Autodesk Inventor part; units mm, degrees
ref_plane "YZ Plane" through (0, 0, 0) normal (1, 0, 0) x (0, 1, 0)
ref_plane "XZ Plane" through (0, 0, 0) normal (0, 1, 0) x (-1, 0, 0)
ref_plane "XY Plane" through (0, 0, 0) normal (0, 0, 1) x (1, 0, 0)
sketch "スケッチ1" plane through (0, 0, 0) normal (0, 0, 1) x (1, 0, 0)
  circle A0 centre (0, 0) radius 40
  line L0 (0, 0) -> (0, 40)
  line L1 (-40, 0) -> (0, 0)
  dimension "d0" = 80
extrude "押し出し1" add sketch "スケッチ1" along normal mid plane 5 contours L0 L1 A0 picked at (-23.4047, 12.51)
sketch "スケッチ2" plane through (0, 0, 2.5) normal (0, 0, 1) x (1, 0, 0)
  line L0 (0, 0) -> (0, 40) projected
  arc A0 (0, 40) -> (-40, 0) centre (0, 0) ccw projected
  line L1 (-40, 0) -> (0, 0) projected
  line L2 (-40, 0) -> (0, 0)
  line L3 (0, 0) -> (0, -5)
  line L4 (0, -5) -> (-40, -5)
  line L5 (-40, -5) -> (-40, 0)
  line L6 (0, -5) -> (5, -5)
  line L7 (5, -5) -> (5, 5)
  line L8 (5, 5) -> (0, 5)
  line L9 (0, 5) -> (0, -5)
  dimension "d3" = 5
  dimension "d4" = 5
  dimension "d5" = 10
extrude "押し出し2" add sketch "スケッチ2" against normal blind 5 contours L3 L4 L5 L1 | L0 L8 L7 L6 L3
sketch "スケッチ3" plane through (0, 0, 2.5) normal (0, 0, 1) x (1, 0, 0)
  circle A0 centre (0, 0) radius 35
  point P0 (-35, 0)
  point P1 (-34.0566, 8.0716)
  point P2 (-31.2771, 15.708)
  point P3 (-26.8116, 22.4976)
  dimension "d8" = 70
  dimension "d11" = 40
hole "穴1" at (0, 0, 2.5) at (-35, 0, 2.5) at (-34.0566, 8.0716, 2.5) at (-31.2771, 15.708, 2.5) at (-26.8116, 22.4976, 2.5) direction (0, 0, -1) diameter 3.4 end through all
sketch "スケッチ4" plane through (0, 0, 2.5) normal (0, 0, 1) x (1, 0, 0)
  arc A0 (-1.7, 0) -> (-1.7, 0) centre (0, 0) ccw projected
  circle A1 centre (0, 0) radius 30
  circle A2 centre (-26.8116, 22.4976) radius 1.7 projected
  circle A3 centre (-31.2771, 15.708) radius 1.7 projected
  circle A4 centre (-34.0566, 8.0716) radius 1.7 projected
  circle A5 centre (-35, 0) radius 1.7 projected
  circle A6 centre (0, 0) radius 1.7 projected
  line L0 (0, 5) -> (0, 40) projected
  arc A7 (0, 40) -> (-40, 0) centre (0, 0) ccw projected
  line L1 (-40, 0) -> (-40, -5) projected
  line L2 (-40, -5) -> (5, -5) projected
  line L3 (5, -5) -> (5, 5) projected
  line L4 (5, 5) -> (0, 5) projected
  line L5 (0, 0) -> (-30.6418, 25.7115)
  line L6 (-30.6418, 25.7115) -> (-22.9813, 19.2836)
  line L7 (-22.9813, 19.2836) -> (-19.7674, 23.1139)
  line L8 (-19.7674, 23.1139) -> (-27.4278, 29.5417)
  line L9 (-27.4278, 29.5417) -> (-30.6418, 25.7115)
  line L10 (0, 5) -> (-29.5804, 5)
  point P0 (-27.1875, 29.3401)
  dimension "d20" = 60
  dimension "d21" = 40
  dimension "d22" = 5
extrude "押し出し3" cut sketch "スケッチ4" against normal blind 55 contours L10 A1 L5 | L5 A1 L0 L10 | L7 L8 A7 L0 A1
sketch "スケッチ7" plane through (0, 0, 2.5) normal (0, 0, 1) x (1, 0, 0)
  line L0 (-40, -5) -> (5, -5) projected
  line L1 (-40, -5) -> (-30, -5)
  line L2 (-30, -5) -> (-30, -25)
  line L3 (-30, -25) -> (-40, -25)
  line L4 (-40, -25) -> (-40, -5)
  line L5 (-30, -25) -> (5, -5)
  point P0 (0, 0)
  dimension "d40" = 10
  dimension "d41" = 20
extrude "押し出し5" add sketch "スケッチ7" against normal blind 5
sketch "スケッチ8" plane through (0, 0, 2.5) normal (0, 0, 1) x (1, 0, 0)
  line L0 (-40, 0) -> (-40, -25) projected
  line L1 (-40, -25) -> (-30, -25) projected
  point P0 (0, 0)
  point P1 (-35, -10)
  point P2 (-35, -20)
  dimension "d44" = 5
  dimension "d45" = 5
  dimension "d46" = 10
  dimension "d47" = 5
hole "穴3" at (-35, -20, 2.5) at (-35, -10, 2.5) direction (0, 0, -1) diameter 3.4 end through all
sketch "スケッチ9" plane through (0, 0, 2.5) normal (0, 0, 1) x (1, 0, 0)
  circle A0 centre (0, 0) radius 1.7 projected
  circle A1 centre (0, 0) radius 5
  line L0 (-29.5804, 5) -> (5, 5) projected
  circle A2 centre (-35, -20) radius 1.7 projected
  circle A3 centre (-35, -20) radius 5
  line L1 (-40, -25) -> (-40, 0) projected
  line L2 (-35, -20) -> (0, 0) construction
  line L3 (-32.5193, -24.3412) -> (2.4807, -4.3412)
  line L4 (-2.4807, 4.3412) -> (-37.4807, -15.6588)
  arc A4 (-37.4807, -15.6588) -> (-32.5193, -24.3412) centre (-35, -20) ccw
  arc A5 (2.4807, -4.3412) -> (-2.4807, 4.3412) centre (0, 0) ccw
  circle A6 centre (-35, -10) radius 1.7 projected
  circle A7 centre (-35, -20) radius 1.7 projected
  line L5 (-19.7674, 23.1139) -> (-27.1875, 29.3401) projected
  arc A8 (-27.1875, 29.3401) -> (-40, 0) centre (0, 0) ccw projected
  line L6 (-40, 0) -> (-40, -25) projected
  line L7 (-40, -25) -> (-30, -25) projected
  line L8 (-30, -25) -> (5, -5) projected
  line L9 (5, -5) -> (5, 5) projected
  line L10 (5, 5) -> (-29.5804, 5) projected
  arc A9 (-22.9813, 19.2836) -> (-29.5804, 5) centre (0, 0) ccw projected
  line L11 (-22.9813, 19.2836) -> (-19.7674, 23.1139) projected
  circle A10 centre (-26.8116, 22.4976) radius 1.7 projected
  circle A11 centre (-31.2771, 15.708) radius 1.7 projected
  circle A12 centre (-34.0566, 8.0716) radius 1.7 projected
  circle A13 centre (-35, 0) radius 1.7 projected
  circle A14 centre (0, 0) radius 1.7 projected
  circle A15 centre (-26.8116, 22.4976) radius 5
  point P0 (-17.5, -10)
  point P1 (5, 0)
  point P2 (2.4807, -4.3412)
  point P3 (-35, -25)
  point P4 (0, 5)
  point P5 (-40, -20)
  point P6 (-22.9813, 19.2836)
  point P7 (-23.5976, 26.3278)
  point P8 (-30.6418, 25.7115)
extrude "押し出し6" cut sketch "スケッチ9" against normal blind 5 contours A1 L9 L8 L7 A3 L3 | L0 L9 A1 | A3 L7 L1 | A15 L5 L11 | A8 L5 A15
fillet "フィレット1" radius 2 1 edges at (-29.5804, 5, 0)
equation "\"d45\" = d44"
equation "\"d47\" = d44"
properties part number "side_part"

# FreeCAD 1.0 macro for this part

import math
import FreeCAD as App
import Part
import Sketcher
Q = App.Units.Quantity


def edges_at(feature, points):
    """Names of the edges that pass closest to the given points."""
    edges = feature.Shape.Edges
    near = lambda p: min(range(len(edges)), key=lambda i: edges[i].distToShape(Part.Vertex(*p))[0])
    return sorted({f"Edge{near(p) + 1}" for p in points})

doc = App.newDocument("Part")
body = doc.addObject("PartDesign::Body", "Body")

# Sketch on XY plane
sketch1 = body.newObject("Sketcher::SketchObject", "Sketch")
sketch1.AttachmentSupport = (doc.getObject("XY_Plane"), [""])
sketch1.MapMode = "FlatFace"
sketch1.addGeometry(Part.LineSegment(App.Vector(0, 0, 0), App.Vector(0, 40, 0)), False)
sketch1.addGeometry(Part.ArcOfCircle(Part.Circle(App.Vector(0, 0, 0), App.Vector(0, 0, 1), 40), math.radians(90), math.radians(180)), False)
sketch1.addGeometry(Part.LineSegment(App.Vector(-40, 0, 0), App.Vector(0, 0, 0)), False)
sketch1.addConstraint(Sketcher.Constraint("Coincident", 0, 2, 1, 1))
sketch1.addConstraint(Sketcher.Constraint("Coincident", 1, 2, 2, 1))
sketch1.addConstraint(Sketcher.Constraint("Coincident", 2, 2, 0, 1))
sketch1.addConstraint(Sketcher.Constraint("Vertical", 0))
sketch1.addConstraint(Sketcher.Constraint("Horizontal", 2))
sketch1.addConstraint(Sketcher.Constraint("Coincident", 1, 3, -1, 1))
sketch1.addConstraint(Sketcher.Constraint("Coincident", 2, 2, -1, 1))
sketch1.addConstraint(Sketcher.Constraint("Radius", 1, Q("40 mm")))
pad1 = body.newObject("PartDesign::Pad", "Pad")
pad1.Profile = sketch1
pad1.Length = 5
pad1.Midplane = True

# Sketch on XY plane
sketch2 = body.newObject("Sketcher::SketchObject", "Sketch001")
sketch2.AttachmentSupport = (doc.getObject("XY_Plane"), [""])
sketch2.MapMode = "FlatFace"
sketch2.AttachmentOffset = App.Placement(App.Vector(0, 0, 2.5), App.Rotation())
sketch2.addGeometry(Part.LineSegment(App.Vector(-40, -5, 0), App.Vector(5, -5, 0)), False)
sketch2.addGeometry(Part.LineSegment(App.Vector(5, -5, 0), App.Vector(5, 5, 0)), False)
sketch2.addGeometry(Part.LineSegment(App.Vector(5, 5, 0), App.Vector(0, 5, 0)), False)
sketch2.addGeometry(Part.LineSegment(App.Vector(0, 5, 0), App.Vector(0, 0, 0)), False)
sketch2.addGeometry(Part.LineSegment(App.Vector(0, 0, 0), App.Vector(-40, 0, 0)), False)
sketch2.addGeometry(Part.LineSegment(App.Vector(-40, 0, 0), App.Vector(-40, -5, 0)), False)
sketch2.addConstraint(Sketcher.Constraint("Coincident", 0, 2, 1, 1))
sketch2.addConstraint(Sketcher.Constraint("Coincident", 1, 2, 2, 1))
sketch2.addConstraint(Sketcher.Constraint("Coincident", 2, 2, 3, 1))
sketch2.addConstraint(Sketcher.Constraint("Coincident", 3, 2, 4, 1))
sketch2.addConstraint(Sketcher.Constraint("Coincident", 4, 2, 5, 1))
sketch2.addConstraint(Sketcher.Constraint("Coincident", 5, 2, 0, 1))
sketch2.addConstraint(Sketcher.Constraint("Horizontal", 0))
sketch2.addConstraint(Sketcher.Constraint("Vertical", 1))
sketch2.addConstraint(Sketcher.Constraint("Horizontal", 2))
sketch2.addConstraint(Sketcher.Constraint("Vertical", 3))
sketch2.addConstraint(Sketcher.Constraint("Horizontal", 4))
sketch2.addConstraint(Sketcher.Constraint("Vertical", 5))
sketch2.addConstraint(Sketcher.Constraint("Coincident", 3, 2, -1, 1))
sketch2.addConstraint(Sketcher.Constraint("Equal", 2, 3))
sketch2.addConstraint(Sketcher.Constraint("Equal", 3, 5))
sketch2.addConstraint(Sketcher.Constraint("DistanceX", 2, 2, 2, 1, Q("5 mm")))
sketch2.addConstraint(Sketcher.Constraint("DistanceX", 0, 1, 0, 2, Q("45 mm")))
pad2 = body.newObject("PartDesign::Pad", "Pad001")
pad2.Profile = sketch2
pad2.Length = 5
pad2.Reversed = True

# Sketch on XY plane
sketch3 = body.newObject("Sketcher::SketchObject", "Sketch002")
sketch3.AttachmentSupport = (doc.getObject("XY_Plane"), [""])
sketch3.MapMode = "FlatFace"
sketch3.AttachmentOffset = App.Placement(App.Vector(0, 0, 2.5), App.Rotation())
sketch3.addGeometry(Part.Circle(App.Vector(0, 0, 0), App.Vector(0, 0, 1), 1.7), False)
sketch3.addGeometry(Part.Circle(App.Vector(-35, 0, 0), App.Vector(0, 0, 1), 1.7), False)
sketch3.addGeometry(Part.Circle(App.Vector(-34.1, 8.1, 0), App.Vector(0, 0, 1), 1.7), False)
sketch3.addGeometry(Part.Circle(App.Vector(-31.3, 15.7, 0), App.Vector(0, 0, 1), 1.7), False)
sketch3.addGeometry(Part.Circle(App.Vector(-26.8, 22.5, 0), App.Vector(0, 0, 1), 1.7), False)
sketch3.addConstraint(Sketcher.Constraint("Coincident", 0, 3, -1, 1))
sketch3.addConstraint(Sketcher.Constraint("Equal", 0, 1))
sketch3.addConstraint(Sketcher.Constraint("Equal", 1, 2))
sketch3.addConstraint(Sketcher.Constraint("Equal", 2, 3))
sketch3.addConstraint(Sketcher.Constraint("Equal", 3, 4))
sketch3.addConstraint(Sketcher.Constraint("PointOnObject", 1, 3, -1))
sketch3.addConstraint(Sketcher.Constraint("Diameter", 0, Q("3.4 mm")))
sketch3.addConstraint(Sketcher.Constraint("DistanceX", 1, 3, -1, 1, Q("35 mm")))
sketch3.addConstraint(Sketcher.Constraint("DistanceX", 3, 3, -1, 1, Q("31.277 mm")))
sketch3.addConstraint(Sketcher.Constraint("DistanceY", -1, 1, 3, 3, Q("15.708 mm")))
sketch3.addConstraint(Sketcher.Constraint("DistanceX", 2, 3, 4, 3, Q("7.245 mm")))
sketch3.addConstraint(Sketcher.Constraint("DistanceY", 2, 3, 4, 3, Q("14.426 mm")))
sketch3.addConstraint(Sketcher.Constraint("DistanceX", 2, 3, -1, 1, Q("34.0566 mm")))
sketch3.addConstraint(Sketcher.Constraint("DistanceY", -1, 1, 2, 3, Q("8.0716 mm")))
doc.recompute()
hole = body.newObject("PartDesign::Hole", "Hole")
hole.Profile = sketch3
hole.ThreadType = "None"
hole.Diameter = 3.4
hole.DepthType = "ThroughAll"

# Sketch on XY plane
sketch4 = body.newObject("Sketcher::SketchObject", "Sketch003")
sketch4.AttachmentSupport = (doc.getObject("XY_Plane"), [""])
sketch4.MapMode = "FlatFace"
sketch4.AttachmentOffset = App.Placement(App.Vector(0, 0, 2.5), App.Rotation())
sketch4.addGeometry(Part.LineSegment(App.Vector(-30, 5, 0), App.Vector(0, 5, 0)), False)
sketch4.addGeometry(Part.LineSegment(App.Vector(0, 5, 0), App.Vector(0, 40, 0)), False)
sketch4.addGeometry(Part.ArcOfCircle(Part.Circle(App.Vector(0, 0, 0), App.Vector(0, 0, 1), 40), math.radians(90), math.radians(133)), False)
sketch4.addGeometry(Part.LineSegment(App.Vector(-27, 29, 0), App.Vector(-20, 23, 0)), False)
sketch4.addGeometry(Part.LineSegment(App.Vector(-20, 23, 0), App.Vector(-23, 19, 0)), False)
sketch4.addGeometry(Part.ArcOfCircle(Part.Circle(App.Vector(0, 0, 0), App.Vector(0, 0, 1), 30), math.radians(140), math.radians(170)), False)
sketch4.addConstraint(Sketcher.Constraint("Coincident", 0, 2, 1, 1))
sketch4.addConstraint(Sketcher.Constraint("Coincident", 1, 2, 2, 1))
sketch4.addConstraint(Sketcher.Constraint("Coincident", 2, 2, 3, 1))
sketch4.addConstraint(Sketcher.Constraint("Coincident", 3, 2, 4, 1))
sketch4.addConstraint(Sketcher.Constraint("Tangent", 4, 2, 5, 1))
sketch4.addConstraint(Sketcher.Constraint("Coincident", 5, 2, 0, 1))
sketch4.addConstraint(Sketcher.Constraint("Horizontal", 0))
sketch4.addConstraint(Sketcher.Constraint("Vertical", 1))
sketch4.addConstraint(Sketcher.Constraint("Coincident", 2, 3, -1, 1))
sketch4.addConstraint(Sketcher.Constraint("Coincident", 5, 3, -1, 1))
sketch4.addConstraint(Sketcher.Constraint("PointOnObject", 0, 2, -2))
sketch4.addConstraint(Sketcher.Constraint("Perpendicular", 3, 4))
sketch4.addConstraint(Sketcher.Constraint("Radius", 2, Q("40 mm")))
sketch4.addConstraint(Sketcher.Constraint("Radius", 5, Q("30 mm")))
sketch4.addConstraint(Sketcher.Constraint("Angle", 3, Q("-39.9998 deg")))
sketch4.addConstraint(Sketcher.Constraint("Distance", 4, Q("5 mm")))
sketch4.addConstraint(Sketcher.Constraint("DistanceY", -1, 1, 0, 2, Q("5 mm")))
pocket1 = body.newObject("PartDesign::Pocket", "Pocket")
pocket1.Profile = sketch4
pocket1.Length = 55

# Sketch on XY plane
sketch5 = body.newObject("Sketcher::SketchObject", "Sketch004")
sketch5.AttachmentSupport = (doc.getObject("XY_Plane"), [""])
sketch5.MapMode = "FlatFace"
sketch5.AttachmentOffset = App.Placement(App.Vector(0, 0, 2.5), App.Rotation())
sketch5.addGeometry(Part.LineSegment(App.Vector(-40, -5, 0), App.Vector(-40, -25, 0)), False)
sketch5.addGeometry(Part.LineSegment(App.Vector(-40, -25, 0), App.Vector(-30, -25, 0)), False)
sketch5.addGeometry(Part.LineSegment(App.Vector(-30, -25, 0), App.Vector(5, -5, 0)), False)
sketch5.addGeometry(Part.LineSegment(App.Vector(5, -5, 0), App.Vector(-40, -5, 0)), False)
sketch5.addConstraint(Sketcher.Constraint("Coincident", 0, 2, 1, 1))
sketch5.addConstraint(Sketcher.Constraint("Coincident", 1, 2, 2, 1))
sketch5.addConstraint(Sketcher.Constraint("Coincident", 2, 2, 3, 1))
sketch5.addConstraint(Sketcher.Constraint("Coincident", 3, 2, 0, 1))
sketch5.addConstraint(Sketcher.Constraint("Vertical", 0))
sketch5.addConstraint(Sketcher.Constraint("Horizontal", 1))
sketch5.addConstraint(Sketcher.Constraint("Horizontal", 3))
sketch5.addConstraint(Sketcher.Constraint("DistanceX", 1, 1, 1, 2, Q("10 mm")))
sketch5.addConstraint(Sketcher.Constraint("DistanceY", 0, 2, 0, 1, Q("20 mm")))
sketch5.addConstraint(Sketcher.Constraint("DistanceX", 3, 2, 3, 1, Q("45 mm")))
sketch5.addConstraint(Sketcher.Constraint("DistanceX", 0, 2, -1, 1, Q("40 mm")))
sketch5.addConstraint(Sketcher.Constraint("DistanceY", 0, 2, -1, 1, Q("25 mm")))
pad3 = body.newObject("PartDesign::Pad", "Pad002")
pad3.Profile = sketch5
pad3.Length = 5
pad3.Reversed = True

# Sketch on XY plane
sketch6 = body.newObject("Sketcher::SketchObject", "Sketch005")
sketch6.AttachmentSupport = (doc.getObject("XY_Plane"), [""])
sketch6.MapMode = "FlatFace"
sketch6.AttachmentOffset = App.Placement(App.Vector(0, 0, 2.5), App.Rotation())
sketch6.addGeometry(Part.Circle(App.Vector(-35, -20, 0), App.Vector(0, 0, 1), 1.7), False)
sketch6.addGeometry(Part.Circle(App.Vector(-35, -10, 0), App.Vector(0, 0, 1), 1.7), False)
sketch6.addConstraint(Sketcher.Constraint("Equal", 0, 1))
sketch6.addConstraint(Sketcher.Constraint("Vertical", 0, 3, 1, 3))
sketch6.addConstraint(Sketcher.Constraint("Diameter", 0, Q("3.4 mm")))
sketch6.addConstraint(Sketcher.Constraint("DistanceX", 0, 3, -1, 1, Q("35 mm")))
sketch6.addConstraint(Sketcher.Constraint("DistanceY", 0, 3, -1, 1, Q("20 mm")))
sketch6.addConstraint(Sketcher.Constraint("DistanceY", 1, 3, -1, 1, Q("10 mm")))
doc.recompute()
hole2 = body.newObject("PartDesign::Hole", "Hole001")
hole2.Profile = sketch6
hole2.ThreadType = "None"
hole2.Diameter = 3.4
hole2.DepthType = "ThroughAll"

# Sketch on XY plane
sketch7 = body.newObject("Sketcher::SketchObject", "Sketch006")
sketch7.AttachmentSupport = (doc.getObject("XY_Plane"), [""])
sketch7.MapMode = "FlatFace"
sketch7.AttachmentOffset = App.Placement(App.Vector(0, 0, 2.5), App.Rotation())
sketch7.addGeometry(Part.ArcOfCircle(Part.Circle(App.Vector(0, 0, 0), App.Vector(0, 0, 1), 5), math.radians(-60), math.radians(0)), False)
sketch7.addGeometry(Part.LineSegment(App.Vector(2.5, -4.3, 0), App.Vector(-32.5, -24.3, 0)), False)
sketch7.addGeometry(Part.ArcOfCircle(Part.Circle(App.Vector(-35, -20, 0), App.Vector(0, 0, 1), 5), math.radians(-90), math.radians(-60)), False)
sketch7.addGeometry(Part.LineSegment(App.Vector(-35, -25, 0), App.Vector(-30, -25, 0)), False)
sketch7.addGeometry(Part.LineSegment(App.Vector(-30, -25, 0), App.Vector(5, -5, 0)), False)
sketch7.addGeometry(Part.LineSegment(App.Vector(5, -5, 0), App.Vector(5, 0, 0)), False)
sketch7.addGeometry(Part.LineSegment(App.Vector(5, 5, 0), App.Vector(0, 5, 0)), False)
sketch7.addGeometry(Part.ArcOfCircle(Part.Circle(App.Vector(0, 0, 0), App.Vector(0, 0, 1), 5), math.radians(0), math.radians(90)), False)
sketch7.addGeometry(Part.LineSegment(App.Vector(5, 0, 0), App.Vector(5, 5, 0)), False)
sketch7.addGeometry(Part.ArcOfCircle(Part.Circle(App.Vector(-35, -20, 0), App.Vector(0, 0, 1), 5), math.radians(180), math.radians(270)), False)
sketch7.addGeometry(Part.LineSegment(App.Vector(-40, -20, 0), App.Vector(-40, -25, 0)), False)
sketch7.addGeometry(Part.LineSegment(App.Vector(-40, -25, 0), App.Vector(-35, -25, 0)), False)
sketch7.addGeometry(Part.ArcOfCircle(Part.Circle(App.Vector(-26.8, 22.5, 0), App.Vector(0, 0, 1), 5), math.radians(-40), math.radians(50)), False)
sketch7.addGeometry(Part.LineSegment(App.Vector(-23, 19.3, 0), App.Vector(-19.8, 23.1, 0)), False)
sketch7.addGeometry(Part.LineSegment(App.Vector(-19.8, 23.1, 0), App.Vector(-23.6, 26.3, 0)), False)
sketch7.addGeometry(Part.ArcOfCircle(Part.Circle(App.Vector(0, 0, 0), App.Vector(0, 0, 1), 40), math.radians(132.82), math.radians(140)), False)
sketch7.addGeometry(Part.ArcOfCircle(Part.Circle(App.Vector(-26.8, 22.5, 0), App.Vector(0, 0, 1), 5), math.radians(50), math.radians(140)), False)
sketch7.addGeometry(Part.LineSegment(App.Vector(-23.6, 26.3, 0), App.Vector(-27.2, 29.3, 0)), False)
sketch7.addConstraint(Sketcher.Constraint("Tangent", 0, 1, 1, 1))
sketch7.addConstraint(Sketcher.Constraint("Tangent", 1, 2, 2, 2))
sketch7.addConstraint(Sketcher.Constraint("Tangent", 2, 1, 3, 1))
sketch7.addConstraint(Sketcher.Constraint("Coincident", 3, 2, 4, 1))
sketch7.addConstraint(Sketcher.Constraint("Coincident", 4, 2, 5, 1))
sketch7.addConstraint(Sketcher.Constraint("Tangent", 5, 2, 0, 2))
sketch7.addConstraint(Sketcher.Constraint("Tangent", 6, 2, 7, 2))
sketch7.addConstraint(Sketcher.Constraint("Tangent", 7, 1, 8, 1))
sketch7.addConstraint(Sketcher.Constraint("Coincident", 8, 2, 6, 1))
sketch7.addConstraint(Sketcher.Constraint("Tangent", 9, 1, 10, 1))
sketch7.addConstraint(Sketcher.Constraint("Coincident", 10, 2, 11, 1))
sketch7.addConstraint(Sketcher.Constraint("Tangent", 11, 2, 9, 2))
sketch7.addConstraint(Sketcher.Constraint("Tangent", 12, 1, 13, 1))
sketch7.addConstraint(Sketcher.Constraint("Coincident", 13, 2, 14, 1))
sketch7.addConstraint(Sketcher.Constraint("Tangent", 14, 2, 12, 2))
sketch7.addConstraint(Sketcher.Constraint("Tangent", 15, 2, 16, 2))
sketch7.addConstraint(Sketcher.Constraint("Tangent", 16, 1, 17, 1))
sketch7.addConstraint(Sketcher.Constraint("Coincident", 17, 2, 15, 1))
sketch7.addConstraint(Sketcher.Constraint("Horizontal", 3))
sketch7.addConstraint(Sketcher.Constraint("Vertical", 5))
sketch7.addConstraint(Sketcher.Constraint("Horizontal", 6))
sketch7.addConstraint(Sketcher.Constraint("Vertical", 8))
sketch7.addConstraint(Sketcher.Constraint("Vertical", 10))
sketch7.addConstraint(Sketcher.Constraint("Horizontal", 11))
sketch7.addConstraint(Sketcher.Constraint("Coincident", 0, 3, -1, 1))
sketch7.addConstraint(Sketcher.Constraint("Coincident", 7, 3, -1, 1))
sketch7.addConstraint(Sketcher.Constraint("Coincident", 15, 3, -1, 1))
sketch7.addConstraint(Sketcher.Constraint("Coincident", 9, 3, 2, 3))
sketch7.addConstraint(Sketcher.Constraint("Coincident", 16, 3, 12, 3))
sketch7.addConstraint(Sketcher.Constraint("Coincident", 16, 1, 14, 2))
sketch7.addConstraint(Sketcher.Constraint("Equal", 0, 2))
sketch7.addConstraint(Sketcher.Constraint("Equal", 2, 7))
sketch7.addConstraint(Sketcher.Constraint("Equal", 7, 9))
sketch7.addConstraint(Sketcher.Constraint("Equal", 9, 12))
sketch7.addConstraint(Sketcher.Constraint("Parallel", 1, 4))
sketch7.addConstraint(Sketcher.Constraint("Perpendicular", 13, 14))
sketch7.addConstraint(Sketcher.Constraint("Equal", 3, 6))
sketch7.addConstraint(Sketcher.Constraint("Radius", 0, Q("5 mm")))
sketch7.addConstraint(Sketcher.Constraint("Radius", 15, Q("40 mm")))
sketch7.addConstraint(Sketcher.Constraint("Angle", 13, Q("50.001 deg")))
sketch7.addConstraint(Sketcher.Constraint("DistanceX", 2, 3, -1, 1, Q("35 mm")))
sketch7.addConstraint(Sketcher.Constraint("DistanceY", 2, 3, -1, 1, Q("20 mm")))
sketch7.addConstraint(Sketcher.Constraint("DistanceY", -1, 1, 17, 2, Q("29.34 mm")))
pocket2 = body.newObject("PartDesign::Pocket", "Pocket001")
pocket2.Profile = sketch7
pocket2.Length = 5
doc.recompute()

fillet = body.newObject("PartDesign::Fillet", "Fillet")
fillet.Base = (pocket2, edges_at(pocket2, [(-29.58, 5, 0)]))
fillet.Radius = 2

doc.recompute()
